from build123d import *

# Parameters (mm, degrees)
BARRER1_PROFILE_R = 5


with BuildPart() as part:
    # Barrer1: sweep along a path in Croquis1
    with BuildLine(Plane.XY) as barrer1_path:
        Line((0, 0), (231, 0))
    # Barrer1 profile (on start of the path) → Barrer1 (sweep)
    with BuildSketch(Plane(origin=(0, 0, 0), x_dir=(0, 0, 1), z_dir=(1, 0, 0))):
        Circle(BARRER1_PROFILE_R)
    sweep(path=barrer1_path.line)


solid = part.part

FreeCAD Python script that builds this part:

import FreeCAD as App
import Part
import Sketcher

doc = App.newDocument("Part")
params = doc.addObject("Spreadsheet::Sheet", "Params")
for row, (alias, value) in enumerate([
    ("sketch1_diameter", "10 mm"),
    ("sketch2_width", "231 mm"),
], start=1):
    params.set(f"A{row}", alias)
    params.set(f"B{row}", "=" + value)
    params.setAlias(f"B{row}", alias)

body = doc.addObject("PartDesign::Body", "Body")

# Sketch on YZ plane
sketch1 = body.newObject("Sketcher::SketchObject", "Sketch")
sketch1.AttachmentSupport = (doc.getObject("YZ_Plane"), [""])
sketch1.MapMode = "FlatFace"
sketch1.addGeometry(Part.Circle(App.Vector(0, 0, 0), App.Vector(0, 0, 1), 5), False)
sketch1.addConstraint([
    Sketcher.Constraint("Coincident", 0, 3, -1, 1),
    Sketcher.Constraint("Diameter", 0, 10.0),
])
sketch1.setExpression("Constraints[1]", "Params.sketch1_diameter")

# Sketch on XY plane
sketch2 = body.newObject("Sketcher::SketchObject", "Sketch001")
sketch2.AttachmentSupport = (doc.getObject("XY_Plane"), [""])
sketch2.MapMode = "FlatFace"
sketch2.addGeometry(Part.LineSegment(App.Vector(0, 0, 0), App.Vector(231, 0, 0)), False)
sketch2.addConstraint([
    Sketcher.Constraint("Horizontal", 0),
    Sketcher.Constraint("Coincident", 0, 1, -1, 1),
    Sketcher.Constraint("DistanceX", 0, 1, 0, 2, 231.0),
])
sketch2.setExpression("Constraints[2]", "Params.sketch2_width")
doc.recompute()

additivepipe = body.newObject("PartDesign::AdditivePipe", "AdditivePipe")
additivepipe.Profile = sketch1
additivepipe.Spine = (sketch2, ["Edge1"])

doc.recompute()
